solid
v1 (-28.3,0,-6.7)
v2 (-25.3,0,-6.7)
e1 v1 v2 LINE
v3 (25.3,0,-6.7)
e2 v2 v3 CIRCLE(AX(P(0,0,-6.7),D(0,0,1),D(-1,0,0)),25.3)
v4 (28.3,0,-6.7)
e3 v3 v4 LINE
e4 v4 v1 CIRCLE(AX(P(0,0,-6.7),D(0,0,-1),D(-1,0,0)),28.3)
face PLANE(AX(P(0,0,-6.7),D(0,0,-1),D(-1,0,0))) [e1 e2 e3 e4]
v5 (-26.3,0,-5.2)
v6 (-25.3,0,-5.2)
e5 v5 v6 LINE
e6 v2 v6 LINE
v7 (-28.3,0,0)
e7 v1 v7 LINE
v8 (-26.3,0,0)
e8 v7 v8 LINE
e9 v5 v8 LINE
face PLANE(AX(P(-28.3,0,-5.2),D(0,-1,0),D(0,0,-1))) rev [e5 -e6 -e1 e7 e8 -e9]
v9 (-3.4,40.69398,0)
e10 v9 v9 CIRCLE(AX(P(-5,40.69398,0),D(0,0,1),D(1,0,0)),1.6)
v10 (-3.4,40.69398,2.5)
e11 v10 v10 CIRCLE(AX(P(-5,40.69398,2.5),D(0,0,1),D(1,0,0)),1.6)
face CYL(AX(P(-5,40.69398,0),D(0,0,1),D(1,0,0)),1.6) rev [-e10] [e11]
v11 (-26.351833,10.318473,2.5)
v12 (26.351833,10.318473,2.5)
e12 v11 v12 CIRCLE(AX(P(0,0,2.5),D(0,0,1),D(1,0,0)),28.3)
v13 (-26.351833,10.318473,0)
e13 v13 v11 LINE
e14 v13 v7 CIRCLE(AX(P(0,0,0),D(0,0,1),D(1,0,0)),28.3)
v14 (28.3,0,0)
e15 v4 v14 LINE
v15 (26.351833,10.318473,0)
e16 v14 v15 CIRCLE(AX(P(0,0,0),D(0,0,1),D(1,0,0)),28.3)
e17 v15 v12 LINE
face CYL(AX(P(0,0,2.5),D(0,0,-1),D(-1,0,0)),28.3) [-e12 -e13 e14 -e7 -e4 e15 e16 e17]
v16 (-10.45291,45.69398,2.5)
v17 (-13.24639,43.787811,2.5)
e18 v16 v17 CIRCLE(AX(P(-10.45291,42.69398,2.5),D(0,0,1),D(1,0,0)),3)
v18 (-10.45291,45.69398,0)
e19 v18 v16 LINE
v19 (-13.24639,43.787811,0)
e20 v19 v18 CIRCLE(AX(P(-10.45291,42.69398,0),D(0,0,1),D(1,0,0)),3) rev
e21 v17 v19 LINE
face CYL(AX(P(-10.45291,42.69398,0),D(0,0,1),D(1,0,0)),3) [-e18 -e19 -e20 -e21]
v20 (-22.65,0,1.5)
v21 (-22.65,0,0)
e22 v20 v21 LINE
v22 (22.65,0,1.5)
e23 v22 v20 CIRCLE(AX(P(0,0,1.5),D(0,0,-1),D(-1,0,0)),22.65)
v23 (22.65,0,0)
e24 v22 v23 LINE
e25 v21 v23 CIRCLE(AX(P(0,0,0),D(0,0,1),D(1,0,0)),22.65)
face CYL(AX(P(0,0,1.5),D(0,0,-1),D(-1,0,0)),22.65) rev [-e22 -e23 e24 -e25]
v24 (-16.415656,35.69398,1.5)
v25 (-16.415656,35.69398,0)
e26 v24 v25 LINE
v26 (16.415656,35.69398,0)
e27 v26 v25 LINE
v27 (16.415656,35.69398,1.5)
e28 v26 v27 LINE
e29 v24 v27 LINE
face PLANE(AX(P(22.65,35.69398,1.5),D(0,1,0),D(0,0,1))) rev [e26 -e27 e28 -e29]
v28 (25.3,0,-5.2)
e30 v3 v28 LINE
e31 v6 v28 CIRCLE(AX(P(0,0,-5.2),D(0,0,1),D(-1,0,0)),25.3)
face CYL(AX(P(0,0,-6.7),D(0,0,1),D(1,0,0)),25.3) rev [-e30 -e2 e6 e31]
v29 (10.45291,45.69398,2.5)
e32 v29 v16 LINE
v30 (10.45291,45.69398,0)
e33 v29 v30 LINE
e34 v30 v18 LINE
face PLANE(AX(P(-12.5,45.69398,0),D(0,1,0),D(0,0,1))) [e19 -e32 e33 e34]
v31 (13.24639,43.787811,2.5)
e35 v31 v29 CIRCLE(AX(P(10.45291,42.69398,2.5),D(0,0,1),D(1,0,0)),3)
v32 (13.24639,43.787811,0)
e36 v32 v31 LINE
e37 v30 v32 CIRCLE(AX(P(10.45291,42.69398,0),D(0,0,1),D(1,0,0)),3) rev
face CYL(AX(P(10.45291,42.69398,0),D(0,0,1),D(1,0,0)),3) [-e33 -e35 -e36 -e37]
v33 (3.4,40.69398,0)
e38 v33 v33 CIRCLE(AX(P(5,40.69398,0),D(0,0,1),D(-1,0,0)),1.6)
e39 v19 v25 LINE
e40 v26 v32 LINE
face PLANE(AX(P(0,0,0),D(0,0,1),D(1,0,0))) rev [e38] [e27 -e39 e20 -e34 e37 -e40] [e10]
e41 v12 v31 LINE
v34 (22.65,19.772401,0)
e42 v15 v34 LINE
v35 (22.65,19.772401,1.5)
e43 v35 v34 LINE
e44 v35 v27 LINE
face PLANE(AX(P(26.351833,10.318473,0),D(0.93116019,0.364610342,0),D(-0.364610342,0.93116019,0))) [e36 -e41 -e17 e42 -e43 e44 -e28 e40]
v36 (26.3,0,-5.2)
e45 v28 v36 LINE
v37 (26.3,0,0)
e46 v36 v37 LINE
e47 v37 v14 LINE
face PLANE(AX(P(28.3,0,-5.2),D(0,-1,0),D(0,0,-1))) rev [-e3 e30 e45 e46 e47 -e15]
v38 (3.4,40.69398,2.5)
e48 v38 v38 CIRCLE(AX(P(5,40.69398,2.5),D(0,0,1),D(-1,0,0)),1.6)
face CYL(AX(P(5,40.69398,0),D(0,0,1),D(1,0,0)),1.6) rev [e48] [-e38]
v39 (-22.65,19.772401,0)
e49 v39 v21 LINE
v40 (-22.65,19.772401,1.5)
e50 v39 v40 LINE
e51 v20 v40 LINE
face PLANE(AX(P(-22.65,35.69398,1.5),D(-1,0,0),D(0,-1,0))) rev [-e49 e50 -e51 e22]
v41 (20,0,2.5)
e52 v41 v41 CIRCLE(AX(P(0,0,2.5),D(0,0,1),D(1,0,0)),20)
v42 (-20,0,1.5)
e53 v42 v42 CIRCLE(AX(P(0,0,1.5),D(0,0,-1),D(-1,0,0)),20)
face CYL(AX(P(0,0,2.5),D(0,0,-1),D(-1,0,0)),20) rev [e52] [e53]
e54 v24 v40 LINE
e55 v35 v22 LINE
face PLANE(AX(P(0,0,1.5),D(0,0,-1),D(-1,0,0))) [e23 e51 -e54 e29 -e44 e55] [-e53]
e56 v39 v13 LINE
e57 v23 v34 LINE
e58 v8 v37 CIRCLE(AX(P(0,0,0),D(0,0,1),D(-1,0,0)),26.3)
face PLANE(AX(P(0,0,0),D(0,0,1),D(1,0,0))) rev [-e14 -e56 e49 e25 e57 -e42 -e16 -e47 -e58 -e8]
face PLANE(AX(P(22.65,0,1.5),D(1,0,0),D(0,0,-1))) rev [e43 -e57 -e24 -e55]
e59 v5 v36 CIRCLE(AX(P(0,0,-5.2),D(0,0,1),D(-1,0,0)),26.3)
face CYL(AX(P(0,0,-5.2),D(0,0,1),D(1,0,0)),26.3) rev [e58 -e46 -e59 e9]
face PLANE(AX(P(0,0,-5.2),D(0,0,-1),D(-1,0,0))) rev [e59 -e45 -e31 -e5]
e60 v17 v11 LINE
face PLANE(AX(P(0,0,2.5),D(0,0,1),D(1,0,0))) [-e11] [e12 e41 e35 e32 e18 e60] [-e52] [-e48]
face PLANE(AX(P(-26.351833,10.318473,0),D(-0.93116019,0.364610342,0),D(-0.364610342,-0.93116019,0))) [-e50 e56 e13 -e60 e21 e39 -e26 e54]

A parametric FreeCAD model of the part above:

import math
import FreeCAD as App
import Part
import Sketcher
Q = App.Units.Quantity


def edges_at(feature, points):
    """Names of the edges that pass closest to the given points."""
    edges = feature.Shape.Edges
    near = lambda p: min(range(len(edges)), key=lambda i: edges[i].distToShape(Part.Vertex(*p))[0])
    return sorted({f"Edge{near(p) + 1}" for p in points})

doc = App.newDocument("Part")
params = doc.addObject("Spreadsheet::Sheet", "Params")
for row, (alias, value) in enumerate([
    ("sketch1_diameter", "40 mm"),
    ("sketch1_diameter2", "56.6 mm"),
    ("pad1_length", "2.5 mm"),
    ("sketch2_diameter", "3.2 mm"),
    ("sketch2_radius", "28.3 mm"),
    ("sketch2_width", "25 mm"),
    ("pad2_length", "2.5 mm"),
    ("sketch3_radius", "28.3 mm"),
    ("sketch3_radius2", "26.3 mm"),
    ("pad3_length", "5.2 mm"),
    ("sketch4_radius", "28.3 mm"),
    ("sketch4_radius2", "25.3 mm"),
    ("pad4_length", "1.5 mm"),
    ("sketch5_radius", "22.65 mm"),
    ("pocket1_length", "11.5 mm"),
    ("fillet_radius", "3 mm"),
], start=1):
    params.set(f"A{row}", alias)
    params.set(f"B{row}", "=" + value)
    params.setAlias(f"B{row}", alias)

body = doc.addObject("PartDesign::Body", "Body")

sketch1 = body.newObject("Sketcher::SketchObject", "Sketch")
sketch1.AttachmentSupport = (doc.getObject("XY_Plane"), [""])
sketch1.MapMode = "FlatFace"
sketch1.addGeometry([
    Part.Circle(App.Vector(0, 0, 0), App.Vector(0, 0, 1), 28),
    Part.Circle(App.Vector(0, 0, 0), App.Vector(0, 0, 1), 20),
], False)
sketch1.addConstraint([
    Sketcher.Constraint("Coincident", 0, 3, -1, 1),
    Sketcher.Constraint("Coincident", 1, 3, -1, 1),
    Sketcher.Constraint("Diameter", 1, Q("40 mm")),
    Sketcher.Constraint("Diameter", 0, Q("56.6 mm")),
])
sketch1.setExpression("Constraints[2]", "Params.sketch1_diameter")
sketch1.setExpression("Constraints[3]", "Params.sketch1_diameter2")
pad1 = body.newObject("PartDesign::Pad", "Pad")
pad1.Profile = sketch1
pad1.setExpression("Length", "Params.pad1_length")

sketch2 = body.newObject("Sketcher::SketchObject", "Sketch001")
sketch2.AttachmentSupport = (doc.getObject("XY_Plane"), [""])
sketch2.MapMode = "FlatFace"
sketch2.addGeometry([
    Part.LineSegment(App.Vector(-12.5, 45.7, 0), App.Vector(-26.4, 10.3, 0)),
    Part.ArcOfCircle(Part.Circle(App.Vector(0, 0, 0), App.Vector(0, 0, 1), 28.3), math.radians(21), math.radians(159)),
    Part.LineSegment(App.Vector(26.4, 10.3, 0), App.Vector(12.5, 45.7, 0)),
    Part.LineSegment(App.Vector(12.5, 45.7, 0), App.Vector(-12.5, 45.7, 0)),
    Part.Circle(App.Vector(5, 40.7, 0), App.Vector(0, 0, 1), 1.6),
    Part.Circle(App.Vector(-5, 40.7, 0), App.Vector(0, 0, 1), 1.6),
], False)
sketch2.addConstraint([
    Sketcher.Constraint("Tangent", 0, 2, 1, 2),
    Sketcher.Constraint("Tangent", 1, 1, 2, 1),
    Sketcher.Constraint("Coincident", 2, 2, 3, 1),
    Sketcher.Constraint("Coincident", 3, 2, 0, 1),
    Sketcher.Constraint("Horizontal", 3),
    Sketcher.Constraint("Coincident", 1, 3, -1, 1),
    Sketcher.Constraint("Equal", 4, 5),
    Sketcher.Constraint("Symmetric", 4, 3, 5, 3, -2),
    Sketcher.Constraint("Horizontal", 0, 2, 1, 1),
    Sketcher.Constraint("Diameter", 4, Q("3.2 mm")),
    Sketcher.Constraint("Radius", 1, Q("28.3 mm")),
    Sketcher.Constraint("DistanceX", 3, 2, 3, 1, Q("25 mm")),
    Sketcher.Constraint("DistanceX", -1, 1, 4, 3, Q("5 mm")),
    Sketcher.Constraint("DistanceY", 4, 3, 2, 2, Q("5 mm")),
    Sketcher.Constraint("DistanceY", -1, 1, 4, 3, Q("40.69398 mm")),
])
sketch2.setExpression("Constraints[9]", "Params.sketch2_diameter")
sketch2.setExpression("Constraints[10]", "Params.sketch2_radius")
sketch2.setExpression("Constraints[11]", "Params.sketch2_width")
pad2 = body.newObject("PartDesign::Pad", "Pad001")
pad2.Profile = sketch2
pad2.setExpression("Length", "Params.pad2_length")

sketch3 = body.newObject("Sketcher::SketchObject", "Sketch002")
sketch3.AttachmentSupport = (doc.getObject("XY_Plane"), [""])
sketch3.MapMode = "FlatFace"
sketch3.AttachmentOffset = App.Placement(App.Vector(0, 0, -5.2), App.Rotation())
sketch3.addGeometry([
    Part.LineSegment(App.Vector(26.3, 0, 0), App.Vector(28.3, 0, 0)),
    Part.ArcOfCircle(Part.Circle(App.Vector(0, 0, 0), App.Vector(0, 0, 1), 28.3), math.radians(180), math.radians(360)),
    Part.LineSegment(App.Vector(-28.3, 0, 0), App.Vector(-26.3, 0, 0)),
    Part.ArcOfCircle(Part.Circle(App.Vector(0, 0, 0), App.Vector(0, 0, 1), 26.3), math.radians(180), math.radians(360)),
], False)
sketch3.addConstraint([
    Sketcher.Constraint("Coincident", 0, 2, 1, 2),
    Sketcher.Constraint("Coincident", 1, 1, 2, 1),
    Sketcher.Constraint("Coincident", 2, 2, 3, 1),
    Sketcher.Constraint("Coincident", 3, 2, 0, 1),
    Sketcher.Constraint("Horizontal", 0),
    Sketcher.Constraint("Horizontal", 2),
    Sketcher.Constraint("Coincident", 1, 3, -1, 1),
    Sketcher.Constraint("Coincident", 3, 3, -1, 1),
    Sketcher.Constraint("PointOnObject", 0, 2, -1),
    Sketcher.Constraint("PointOnObject", 1, 1, -1),
    Sketcher.Constraint("Radius", 1, Q("28.3 mm")),
    Sketcher.Constraint("Radius", 3, Q("26.3 mm")),
])
sketch3.setExpression("Constraints[10]", "Params.sketch3_radius")
sketch3.setExpression("Constraints[11]", "Params.sketch3_radius2")
pad3 = body.newObject("PartDesign::Pad", "Pad002")
pad3.Profile = sketch3
pad3.setExpression("Length", "Params.pad3_length")

sketch4 = body.newObject("Sketcher::SketchObject", "Sketch003")
sketch4.AttachmentSupport = (doc.getObject("XY_Plane"), [""])
sketch4.MapMode = "FlatFace"
sketch4.AttachmentOffset = App.Placement(App.Vector(0, 0, -6.7), App.Rotation())
sketch4.addGeometry([
    Part.LineSegment(App.Vector(25.3, 0, 0), App.Vector(28.3, 0, 0)),
    Part.ArcOfCircle(Part.Circle(App.Vector(0, 0, 0), App.Vector(0, 0, 1), 28.3), math.radians(180), math.radians(360)),
    Part.LineSegment(App.Vector(-28.3, 0, 0), App.Vector(-25.3, 0, 0)),
    Part.ArcOfCircle(Part.Circle(App.Vector(0, 0, 0), App.Vector(0, 0, 1), 25.3), math.radians(180), math.radians(360)),
], False)
sketch4.addConstraint([
    Sketcher.Constraint("Coincident", 0, 2, 1, 2),
    Sketcher.Constraint("Coincident", 1, 1, 2, 1),
    Sketcher.Constraint("Coincident", 2, 2, 3, 1),
    Sketcher.Constraint("Coincident", 3, 2, 0, 1),
    Sketcher.Constraint("Horizontal", 0),
    Sketcher.Constraint("Horizontal", 2),
    Sketcher.Constraint("Coincident", 1, 3, -1, 1),
    Sketcher.Constraint("Coincident", 3, 3, -1, 1),
    Sketcher.Constraint("PointOnObject", 0, 2, -1),
    Sketcher.Constraint("PointOnObject", 1, 1, -1),
    Sketcher.Constraint("Radius", 1, Q("28.3 mm")),
    Sketcher.Constraint("Radius", 3, Q("25.3 mm")),
])
sketch4.setExpression("Constraints[10]", "Params.sketch4_radius")
sketch4.setExpression("Constraints[11]", "Params.sketch4_radius2")
pad4 = body.newObject("PartDesign::Pad", "Pad003")
pad4.Profile = sketch4
pad4.setExpression("Length", "Params.pad4_length")

sketch5 = body.newObject("Sketcher::SketchObject", "Sketch004")
sketch5.AttachmentSupport = (doc.getObject("XY_Plane"), [""])
sketch5.MapMode = "FlatFace"
sketch5.AttachmentOffset = App.Placement(App.Vector(0, 0, -10), App.Rotation())
sketch5.addGeometry([
    Part.LineSegment(App.Vector(23, 36, 0), App.Vector(23, 0, 0)),
    Part.ArcOfCircle(Part.Circle(App.Vector(0, 0, 0), App.Vector(0, 0, 1), 23), math.radians(180), math.radians(360)),
    Part.LineSegment(App.Vector(-23, 0, 0), App.Vector(-23, 36, 0)),
    Part.LineSegment(App.Vector(-23, 36, 0), App.Vector(23, 36, 0)),
], False)
sketch5.addConstraint([
    Sketcher.Constraint("Tangent", 0, 2, 1, 2),
    Sketcher.Constraint("Tangent", 1, 1, 2, 1),
    Sketcher.Constraint("Coincident", 2, 2, 3, 1),
    Sketcher.Constraint("Coincident", 3, 2, 0, 1),
    Sketcher.Constraint("Vertical", 0),
    Sketcher.Constraint("Vertical", 2),
    Sketcher.Constraint("Horizontal", 3),
    Sketcher.Constraint("Coincident", 1, 3, -1, 1),
    Sketcher.Constraint("Radius", 1, Q("22.65 mm")),
    Sketcher.Constraint("DistanceY", 0, 2, 0, 1, Q("35.69398 mm")),
])
sketch5.setExpression("Constraints[8]", "Params.sketch5_radius")
pocket1 = body.newObject("PartDesign::Pocket", "Pocket")
pocket1.Profile = sketch5
pocket1.setExpression("Length", "Params.pocket1_length")
pocket1.Reversed = True
doc.recompute()

fillet = body.newObject("PartDesign::Fillet", "Fillet")
fillet.Base = (pocket1, edges_at(pocket1, [(-12.5, 45.694, 1.25), (12.5, 45.694, 1.25)]))
fillet.setExpression("Radius", "Params.fillet_radius")

doc.recompute()
